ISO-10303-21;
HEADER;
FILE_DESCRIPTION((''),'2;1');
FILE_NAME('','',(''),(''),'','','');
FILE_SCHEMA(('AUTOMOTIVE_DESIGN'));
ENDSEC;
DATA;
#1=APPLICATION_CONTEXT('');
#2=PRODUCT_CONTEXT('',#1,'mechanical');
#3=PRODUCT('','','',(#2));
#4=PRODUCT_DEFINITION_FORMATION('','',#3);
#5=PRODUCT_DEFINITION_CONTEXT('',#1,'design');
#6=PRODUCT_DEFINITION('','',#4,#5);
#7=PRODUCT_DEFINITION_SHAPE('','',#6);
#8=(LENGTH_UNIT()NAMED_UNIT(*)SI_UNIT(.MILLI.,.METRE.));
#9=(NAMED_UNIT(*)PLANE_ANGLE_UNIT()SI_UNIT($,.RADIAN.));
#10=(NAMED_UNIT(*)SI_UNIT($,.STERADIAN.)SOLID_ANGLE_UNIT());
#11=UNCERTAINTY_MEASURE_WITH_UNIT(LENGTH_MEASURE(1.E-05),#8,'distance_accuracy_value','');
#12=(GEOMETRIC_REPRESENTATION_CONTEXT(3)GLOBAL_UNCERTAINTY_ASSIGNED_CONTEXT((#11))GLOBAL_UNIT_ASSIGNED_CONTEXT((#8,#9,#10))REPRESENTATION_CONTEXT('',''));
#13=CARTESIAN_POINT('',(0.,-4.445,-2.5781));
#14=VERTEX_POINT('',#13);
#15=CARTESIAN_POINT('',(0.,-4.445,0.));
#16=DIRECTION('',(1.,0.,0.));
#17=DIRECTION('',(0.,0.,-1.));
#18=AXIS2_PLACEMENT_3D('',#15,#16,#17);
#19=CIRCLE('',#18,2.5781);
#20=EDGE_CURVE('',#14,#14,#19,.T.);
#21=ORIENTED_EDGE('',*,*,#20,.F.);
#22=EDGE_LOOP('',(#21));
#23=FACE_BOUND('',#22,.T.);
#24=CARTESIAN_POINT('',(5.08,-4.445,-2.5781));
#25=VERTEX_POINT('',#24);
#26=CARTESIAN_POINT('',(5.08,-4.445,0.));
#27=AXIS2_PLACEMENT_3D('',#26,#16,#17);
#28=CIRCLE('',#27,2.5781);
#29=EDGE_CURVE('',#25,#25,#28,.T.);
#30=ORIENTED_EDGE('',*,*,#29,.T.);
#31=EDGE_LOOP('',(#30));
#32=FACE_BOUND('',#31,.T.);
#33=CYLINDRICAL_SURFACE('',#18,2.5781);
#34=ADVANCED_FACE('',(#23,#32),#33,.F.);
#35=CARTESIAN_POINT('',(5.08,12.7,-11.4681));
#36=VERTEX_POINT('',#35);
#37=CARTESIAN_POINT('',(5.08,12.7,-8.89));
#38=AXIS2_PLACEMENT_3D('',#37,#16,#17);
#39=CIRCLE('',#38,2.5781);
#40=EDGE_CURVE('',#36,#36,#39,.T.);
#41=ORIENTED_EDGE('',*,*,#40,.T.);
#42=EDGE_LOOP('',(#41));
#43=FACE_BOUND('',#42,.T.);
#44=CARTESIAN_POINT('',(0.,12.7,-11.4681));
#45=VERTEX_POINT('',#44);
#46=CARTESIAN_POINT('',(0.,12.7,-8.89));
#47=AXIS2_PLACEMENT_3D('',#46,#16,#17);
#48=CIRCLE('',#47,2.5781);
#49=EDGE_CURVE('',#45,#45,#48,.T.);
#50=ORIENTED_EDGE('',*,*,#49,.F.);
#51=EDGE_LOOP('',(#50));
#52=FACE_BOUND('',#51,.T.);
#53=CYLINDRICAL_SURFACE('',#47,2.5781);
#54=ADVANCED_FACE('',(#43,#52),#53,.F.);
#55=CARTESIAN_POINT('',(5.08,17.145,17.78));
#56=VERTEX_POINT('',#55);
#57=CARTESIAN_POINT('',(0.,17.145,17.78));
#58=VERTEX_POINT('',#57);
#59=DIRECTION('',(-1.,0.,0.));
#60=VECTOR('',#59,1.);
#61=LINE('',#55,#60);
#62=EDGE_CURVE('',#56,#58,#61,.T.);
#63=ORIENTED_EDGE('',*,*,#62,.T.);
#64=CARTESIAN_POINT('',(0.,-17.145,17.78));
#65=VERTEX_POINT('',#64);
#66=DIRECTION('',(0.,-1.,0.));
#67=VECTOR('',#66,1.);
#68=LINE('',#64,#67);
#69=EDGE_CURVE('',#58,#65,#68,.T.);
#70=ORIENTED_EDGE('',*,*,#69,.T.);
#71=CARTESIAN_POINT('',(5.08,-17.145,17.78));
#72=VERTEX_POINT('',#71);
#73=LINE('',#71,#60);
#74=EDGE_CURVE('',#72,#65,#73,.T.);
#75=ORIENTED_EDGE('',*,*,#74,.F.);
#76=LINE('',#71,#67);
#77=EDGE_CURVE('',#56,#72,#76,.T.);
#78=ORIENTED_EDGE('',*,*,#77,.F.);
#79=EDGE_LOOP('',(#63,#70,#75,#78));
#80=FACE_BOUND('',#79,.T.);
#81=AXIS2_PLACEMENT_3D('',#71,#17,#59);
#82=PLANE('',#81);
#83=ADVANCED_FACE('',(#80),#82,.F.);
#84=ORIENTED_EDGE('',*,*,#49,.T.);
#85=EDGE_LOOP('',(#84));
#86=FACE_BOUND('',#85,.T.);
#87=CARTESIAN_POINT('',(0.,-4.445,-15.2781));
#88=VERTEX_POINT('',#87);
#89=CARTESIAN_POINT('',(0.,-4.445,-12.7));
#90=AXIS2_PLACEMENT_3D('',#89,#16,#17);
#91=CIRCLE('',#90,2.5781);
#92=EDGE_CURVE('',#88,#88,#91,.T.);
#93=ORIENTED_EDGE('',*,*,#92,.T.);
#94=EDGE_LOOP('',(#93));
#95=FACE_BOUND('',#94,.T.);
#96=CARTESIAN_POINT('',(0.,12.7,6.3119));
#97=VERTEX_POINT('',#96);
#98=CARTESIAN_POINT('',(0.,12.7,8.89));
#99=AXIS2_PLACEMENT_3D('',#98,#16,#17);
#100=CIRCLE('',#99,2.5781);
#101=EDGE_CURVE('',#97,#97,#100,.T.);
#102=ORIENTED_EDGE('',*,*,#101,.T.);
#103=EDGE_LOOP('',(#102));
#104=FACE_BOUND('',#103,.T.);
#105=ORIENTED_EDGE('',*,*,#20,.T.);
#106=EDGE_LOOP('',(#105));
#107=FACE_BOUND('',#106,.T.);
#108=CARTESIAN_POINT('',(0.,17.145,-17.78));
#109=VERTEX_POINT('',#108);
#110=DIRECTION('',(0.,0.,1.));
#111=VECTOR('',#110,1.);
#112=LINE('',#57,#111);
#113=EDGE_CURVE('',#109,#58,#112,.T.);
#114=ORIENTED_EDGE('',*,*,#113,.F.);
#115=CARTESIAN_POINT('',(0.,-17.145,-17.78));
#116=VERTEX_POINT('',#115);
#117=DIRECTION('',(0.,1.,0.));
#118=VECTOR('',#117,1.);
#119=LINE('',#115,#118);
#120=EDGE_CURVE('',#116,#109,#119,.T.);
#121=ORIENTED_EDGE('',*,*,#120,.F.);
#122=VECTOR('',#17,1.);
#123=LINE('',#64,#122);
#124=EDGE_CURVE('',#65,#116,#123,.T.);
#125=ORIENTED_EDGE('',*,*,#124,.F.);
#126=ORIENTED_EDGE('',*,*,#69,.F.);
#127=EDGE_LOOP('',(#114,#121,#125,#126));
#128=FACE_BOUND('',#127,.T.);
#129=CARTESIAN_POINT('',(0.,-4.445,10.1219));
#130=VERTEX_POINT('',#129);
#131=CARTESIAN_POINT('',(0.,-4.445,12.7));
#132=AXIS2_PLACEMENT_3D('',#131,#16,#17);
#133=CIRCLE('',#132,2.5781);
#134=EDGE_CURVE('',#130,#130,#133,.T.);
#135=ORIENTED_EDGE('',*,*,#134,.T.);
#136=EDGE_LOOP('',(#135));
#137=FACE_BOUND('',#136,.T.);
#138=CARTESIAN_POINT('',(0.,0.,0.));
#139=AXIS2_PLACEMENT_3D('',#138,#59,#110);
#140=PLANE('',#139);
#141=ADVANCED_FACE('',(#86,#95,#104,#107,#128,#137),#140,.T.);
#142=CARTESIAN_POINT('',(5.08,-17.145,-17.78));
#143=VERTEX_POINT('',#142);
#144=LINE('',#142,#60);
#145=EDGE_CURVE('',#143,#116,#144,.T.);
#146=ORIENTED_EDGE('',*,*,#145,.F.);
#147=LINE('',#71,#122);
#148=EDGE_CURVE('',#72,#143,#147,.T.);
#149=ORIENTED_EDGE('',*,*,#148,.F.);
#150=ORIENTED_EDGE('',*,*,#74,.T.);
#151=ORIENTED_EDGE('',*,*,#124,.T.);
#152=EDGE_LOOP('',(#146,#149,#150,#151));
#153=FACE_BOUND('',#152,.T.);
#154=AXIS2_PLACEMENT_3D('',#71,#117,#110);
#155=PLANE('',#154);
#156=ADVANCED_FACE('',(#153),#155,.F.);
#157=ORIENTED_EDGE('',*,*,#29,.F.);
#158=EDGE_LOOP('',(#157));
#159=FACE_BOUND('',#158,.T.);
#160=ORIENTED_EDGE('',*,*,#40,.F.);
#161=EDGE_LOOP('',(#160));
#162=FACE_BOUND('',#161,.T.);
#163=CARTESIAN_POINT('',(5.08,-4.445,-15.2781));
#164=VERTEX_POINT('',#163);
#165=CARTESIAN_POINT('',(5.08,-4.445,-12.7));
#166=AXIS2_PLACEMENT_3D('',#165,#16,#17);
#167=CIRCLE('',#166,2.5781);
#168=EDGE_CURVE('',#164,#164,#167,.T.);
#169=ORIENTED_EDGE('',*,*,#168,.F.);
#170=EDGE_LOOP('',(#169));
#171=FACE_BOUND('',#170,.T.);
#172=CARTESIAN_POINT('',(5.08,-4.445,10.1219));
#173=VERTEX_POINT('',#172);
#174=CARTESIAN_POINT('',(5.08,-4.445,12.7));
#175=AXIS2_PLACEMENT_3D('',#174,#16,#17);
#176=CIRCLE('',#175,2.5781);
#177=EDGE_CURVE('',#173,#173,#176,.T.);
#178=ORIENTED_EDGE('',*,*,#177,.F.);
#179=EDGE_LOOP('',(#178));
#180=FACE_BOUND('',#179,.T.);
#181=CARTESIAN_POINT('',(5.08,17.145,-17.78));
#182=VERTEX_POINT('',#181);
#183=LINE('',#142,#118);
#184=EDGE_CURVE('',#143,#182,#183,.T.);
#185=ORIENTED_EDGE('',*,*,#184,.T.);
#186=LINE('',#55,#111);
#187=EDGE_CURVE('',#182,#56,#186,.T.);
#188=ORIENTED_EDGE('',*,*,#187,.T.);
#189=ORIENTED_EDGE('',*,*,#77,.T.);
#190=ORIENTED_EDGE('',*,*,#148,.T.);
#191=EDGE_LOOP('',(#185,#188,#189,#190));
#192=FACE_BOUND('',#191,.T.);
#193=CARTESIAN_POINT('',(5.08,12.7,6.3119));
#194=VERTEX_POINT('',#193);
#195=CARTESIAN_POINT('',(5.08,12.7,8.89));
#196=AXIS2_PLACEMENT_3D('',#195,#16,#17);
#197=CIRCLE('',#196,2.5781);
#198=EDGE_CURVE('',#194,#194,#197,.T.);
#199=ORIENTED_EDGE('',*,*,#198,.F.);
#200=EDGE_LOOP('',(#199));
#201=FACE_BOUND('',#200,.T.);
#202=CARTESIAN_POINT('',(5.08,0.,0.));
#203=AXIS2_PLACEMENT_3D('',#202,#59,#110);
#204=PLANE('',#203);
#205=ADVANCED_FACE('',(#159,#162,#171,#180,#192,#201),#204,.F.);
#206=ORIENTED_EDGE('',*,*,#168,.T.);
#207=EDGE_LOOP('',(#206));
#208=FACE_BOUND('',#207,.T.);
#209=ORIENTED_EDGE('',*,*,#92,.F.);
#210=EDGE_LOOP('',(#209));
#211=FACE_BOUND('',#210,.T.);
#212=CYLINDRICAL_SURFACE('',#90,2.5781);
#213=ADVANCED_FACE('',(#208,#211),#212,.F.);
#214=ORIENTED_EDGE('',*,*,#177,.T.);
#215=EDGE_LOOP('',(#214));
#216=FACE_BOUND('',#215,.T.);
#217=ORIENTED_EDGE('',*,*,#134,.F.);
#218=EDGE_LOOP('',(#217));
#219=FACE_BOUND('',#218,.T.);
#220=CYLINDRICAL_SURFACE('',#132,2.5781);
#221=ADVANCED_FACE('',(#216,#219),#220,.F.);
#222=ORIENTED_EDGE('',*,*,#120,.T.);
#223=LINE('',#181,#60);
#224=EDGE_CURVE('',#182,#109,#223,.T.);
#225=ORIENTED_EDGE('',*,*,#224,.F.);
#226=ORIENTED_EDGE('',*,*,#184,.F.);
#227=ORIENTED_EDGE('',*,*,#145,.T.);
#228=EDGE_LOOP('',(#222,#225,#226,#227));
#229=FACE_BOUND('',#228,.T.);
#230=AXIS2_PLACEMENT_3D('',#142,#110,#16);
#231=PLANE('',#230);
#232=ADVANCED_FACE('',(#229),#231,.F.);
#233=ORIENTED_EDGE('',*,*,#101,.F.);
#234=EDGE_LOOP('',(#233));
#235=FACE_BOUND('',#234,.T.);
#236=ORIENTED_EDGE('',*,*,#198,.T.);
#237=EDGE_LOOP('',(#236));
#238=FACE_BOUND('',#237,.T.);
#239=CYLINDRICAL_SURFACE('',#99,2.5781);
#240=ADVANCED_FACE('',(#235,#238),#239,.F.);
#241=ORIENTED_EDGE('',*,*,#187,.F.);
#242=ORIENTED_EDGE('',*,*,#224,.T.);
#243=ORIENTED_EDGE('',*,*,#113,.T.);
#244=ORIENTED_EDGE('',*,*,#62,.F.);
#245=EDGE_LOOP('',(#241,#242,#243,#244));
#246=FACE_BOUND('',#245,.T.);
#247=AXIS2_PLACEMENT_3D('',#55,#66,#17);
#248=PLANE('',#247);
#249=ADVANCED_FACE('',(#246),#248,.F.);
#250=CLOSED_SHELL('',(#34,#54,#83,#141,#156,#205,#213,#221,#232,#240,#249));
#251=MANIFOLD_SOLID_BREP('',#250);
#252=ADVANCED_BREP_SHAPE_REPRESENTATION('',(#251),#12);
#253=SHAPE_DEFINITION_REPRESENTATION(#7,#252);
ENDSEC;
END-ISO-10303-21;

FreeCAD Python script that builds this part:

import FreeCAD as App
import Part
import Sketcher

V = App.Vector
Q = App.Units.Quantity

doc = App.newDocument("Part")
body = doc.addObject("PartDesign::Body", "Body")

sketch1 = body.newObject("Sketcher::SketchObject", "Sketch")
sketch1.AttachmentSupport = (doc.getObject("YZ_Plane"), [""])
sketch1.MapMode = "FlatFace"
sketch1.addGeometry([
    Part.LineSegment(V(17.145, 17.78, 0), V(-17.145, 17.78, 0)),
    Part.LineSegment(V(-17.145, 17.78, 0), V(-17.145, -17.78, 0)),
    Part.LineSegment(V(-17.145, -17.78, 0), V(17.145, -17.78, 0)),
    Part.LineSegment(V(17.145, -17.78, 0), V(17.145, 17.78, 0)),
], False)
sketch1.addConstraint([
    Sketcher.Constraint("Coincident", 0, 2, 1, 1),
    Sketcher.Constraint("Coincident", 1, 2, 2, 1),
    Sketcher.Constraint("Coincident", 2, 2, 3, 1),
    Sketcher.Constraint("Coincident", 3, 2, 0, 1),
    Sketcher.Constraint("Horizontal", 0),
    Sketcher.Constraint("Vertical", 1),
    Sketcher.Constraint("Horizontal", 2),
    Sketcher.Constraint("Vertical", 3),
    Sketcher.Constraint("Symmetric", 0, 2, 2, 2, -1, 1),
    Sketcher.Constraint("DistanceY", 1, 2, 1, 1, Q("1.4 in")),
    Sketcher.Constraint("DistanceX", 0, 2, 0, 1, Q("1.35 in")),
])
pad1 = body.newObject("PartDesign::Pad", "Pad")
pad1.Profile = sketch1
pad1.Length = Q("0.2 in")

sketch2 = body.newObject("Sketcher::SketchObject", "Sketch001")
sketch2.AttachmentSupport = (doc.getObject("YZ_Plane"), [""])
sketch2.MapMode = "FlatFace"
sketch2.AttachmentOffset = App.Placement(V(0, 0, 0.2 * 25.4), App.Rotation())
sketch2.addGeometry([
    Part.Circle(V(12.7, 8.89, 0), V(0, 0, 1), 2.5781),
    Part.Circle(V(12.7, -8.89, 0), V(0, 0, 1), 2.5781),
    Part.Circle(V(-4.445, 12.7, 0), V(0, 0, 1), 2.5781),
    Part.Circle(V(-4.445, 0, 0), V(0, 0, 1), 2.5781),
    Part.Circle(V(-4.445, -12.7, 0), V(0, 0, 1), 2.5781),
], False)
sketch2.addConstraint([
    Sketcher.Constraint("Equal", 0, 1),
    Sketcher.Constraint("Equal", 1, 2),
    Sketcher.Constraint("Equal", 2, 3),
    Sketcher.Constraint("Equal", 3, 4),
    Sketcher.Constraint("Symmetric", 0, 3, 1, 3, -1),
    Sketcher.Constraint("Symmetric", 2, 3, 4, 3, -1),
    Sketcher.Constraint("PointOnObject", 3, 3, -1),
    Sketcher.Constraint("Vertical", 2, 3, 3, 3),
    Sketcher.Constraint("Diameter", 0, Q("0.203 in")),
    Sketcher.Constraint("DistanceY", 4, 3, 2, 3, Q("1 in")),
    Sketcher.Constraint("DistanceX", -1, 1, 0, 3, Q("0.5 in")),
    Sketcher.Constraint("DistanceY", 1, 3, 0, 3, Q("0.7 in")),
    Sketcher.Constraint("DistanceX", 2, 3, -1, 1, Q("0.175 in")),
])
pocket1 = body.newObject("PartDesign::Pocket", "Pocket")
pocket1.Profile = sketch2
pocket1.Type = "ThroughAll"

doc.recompute()
